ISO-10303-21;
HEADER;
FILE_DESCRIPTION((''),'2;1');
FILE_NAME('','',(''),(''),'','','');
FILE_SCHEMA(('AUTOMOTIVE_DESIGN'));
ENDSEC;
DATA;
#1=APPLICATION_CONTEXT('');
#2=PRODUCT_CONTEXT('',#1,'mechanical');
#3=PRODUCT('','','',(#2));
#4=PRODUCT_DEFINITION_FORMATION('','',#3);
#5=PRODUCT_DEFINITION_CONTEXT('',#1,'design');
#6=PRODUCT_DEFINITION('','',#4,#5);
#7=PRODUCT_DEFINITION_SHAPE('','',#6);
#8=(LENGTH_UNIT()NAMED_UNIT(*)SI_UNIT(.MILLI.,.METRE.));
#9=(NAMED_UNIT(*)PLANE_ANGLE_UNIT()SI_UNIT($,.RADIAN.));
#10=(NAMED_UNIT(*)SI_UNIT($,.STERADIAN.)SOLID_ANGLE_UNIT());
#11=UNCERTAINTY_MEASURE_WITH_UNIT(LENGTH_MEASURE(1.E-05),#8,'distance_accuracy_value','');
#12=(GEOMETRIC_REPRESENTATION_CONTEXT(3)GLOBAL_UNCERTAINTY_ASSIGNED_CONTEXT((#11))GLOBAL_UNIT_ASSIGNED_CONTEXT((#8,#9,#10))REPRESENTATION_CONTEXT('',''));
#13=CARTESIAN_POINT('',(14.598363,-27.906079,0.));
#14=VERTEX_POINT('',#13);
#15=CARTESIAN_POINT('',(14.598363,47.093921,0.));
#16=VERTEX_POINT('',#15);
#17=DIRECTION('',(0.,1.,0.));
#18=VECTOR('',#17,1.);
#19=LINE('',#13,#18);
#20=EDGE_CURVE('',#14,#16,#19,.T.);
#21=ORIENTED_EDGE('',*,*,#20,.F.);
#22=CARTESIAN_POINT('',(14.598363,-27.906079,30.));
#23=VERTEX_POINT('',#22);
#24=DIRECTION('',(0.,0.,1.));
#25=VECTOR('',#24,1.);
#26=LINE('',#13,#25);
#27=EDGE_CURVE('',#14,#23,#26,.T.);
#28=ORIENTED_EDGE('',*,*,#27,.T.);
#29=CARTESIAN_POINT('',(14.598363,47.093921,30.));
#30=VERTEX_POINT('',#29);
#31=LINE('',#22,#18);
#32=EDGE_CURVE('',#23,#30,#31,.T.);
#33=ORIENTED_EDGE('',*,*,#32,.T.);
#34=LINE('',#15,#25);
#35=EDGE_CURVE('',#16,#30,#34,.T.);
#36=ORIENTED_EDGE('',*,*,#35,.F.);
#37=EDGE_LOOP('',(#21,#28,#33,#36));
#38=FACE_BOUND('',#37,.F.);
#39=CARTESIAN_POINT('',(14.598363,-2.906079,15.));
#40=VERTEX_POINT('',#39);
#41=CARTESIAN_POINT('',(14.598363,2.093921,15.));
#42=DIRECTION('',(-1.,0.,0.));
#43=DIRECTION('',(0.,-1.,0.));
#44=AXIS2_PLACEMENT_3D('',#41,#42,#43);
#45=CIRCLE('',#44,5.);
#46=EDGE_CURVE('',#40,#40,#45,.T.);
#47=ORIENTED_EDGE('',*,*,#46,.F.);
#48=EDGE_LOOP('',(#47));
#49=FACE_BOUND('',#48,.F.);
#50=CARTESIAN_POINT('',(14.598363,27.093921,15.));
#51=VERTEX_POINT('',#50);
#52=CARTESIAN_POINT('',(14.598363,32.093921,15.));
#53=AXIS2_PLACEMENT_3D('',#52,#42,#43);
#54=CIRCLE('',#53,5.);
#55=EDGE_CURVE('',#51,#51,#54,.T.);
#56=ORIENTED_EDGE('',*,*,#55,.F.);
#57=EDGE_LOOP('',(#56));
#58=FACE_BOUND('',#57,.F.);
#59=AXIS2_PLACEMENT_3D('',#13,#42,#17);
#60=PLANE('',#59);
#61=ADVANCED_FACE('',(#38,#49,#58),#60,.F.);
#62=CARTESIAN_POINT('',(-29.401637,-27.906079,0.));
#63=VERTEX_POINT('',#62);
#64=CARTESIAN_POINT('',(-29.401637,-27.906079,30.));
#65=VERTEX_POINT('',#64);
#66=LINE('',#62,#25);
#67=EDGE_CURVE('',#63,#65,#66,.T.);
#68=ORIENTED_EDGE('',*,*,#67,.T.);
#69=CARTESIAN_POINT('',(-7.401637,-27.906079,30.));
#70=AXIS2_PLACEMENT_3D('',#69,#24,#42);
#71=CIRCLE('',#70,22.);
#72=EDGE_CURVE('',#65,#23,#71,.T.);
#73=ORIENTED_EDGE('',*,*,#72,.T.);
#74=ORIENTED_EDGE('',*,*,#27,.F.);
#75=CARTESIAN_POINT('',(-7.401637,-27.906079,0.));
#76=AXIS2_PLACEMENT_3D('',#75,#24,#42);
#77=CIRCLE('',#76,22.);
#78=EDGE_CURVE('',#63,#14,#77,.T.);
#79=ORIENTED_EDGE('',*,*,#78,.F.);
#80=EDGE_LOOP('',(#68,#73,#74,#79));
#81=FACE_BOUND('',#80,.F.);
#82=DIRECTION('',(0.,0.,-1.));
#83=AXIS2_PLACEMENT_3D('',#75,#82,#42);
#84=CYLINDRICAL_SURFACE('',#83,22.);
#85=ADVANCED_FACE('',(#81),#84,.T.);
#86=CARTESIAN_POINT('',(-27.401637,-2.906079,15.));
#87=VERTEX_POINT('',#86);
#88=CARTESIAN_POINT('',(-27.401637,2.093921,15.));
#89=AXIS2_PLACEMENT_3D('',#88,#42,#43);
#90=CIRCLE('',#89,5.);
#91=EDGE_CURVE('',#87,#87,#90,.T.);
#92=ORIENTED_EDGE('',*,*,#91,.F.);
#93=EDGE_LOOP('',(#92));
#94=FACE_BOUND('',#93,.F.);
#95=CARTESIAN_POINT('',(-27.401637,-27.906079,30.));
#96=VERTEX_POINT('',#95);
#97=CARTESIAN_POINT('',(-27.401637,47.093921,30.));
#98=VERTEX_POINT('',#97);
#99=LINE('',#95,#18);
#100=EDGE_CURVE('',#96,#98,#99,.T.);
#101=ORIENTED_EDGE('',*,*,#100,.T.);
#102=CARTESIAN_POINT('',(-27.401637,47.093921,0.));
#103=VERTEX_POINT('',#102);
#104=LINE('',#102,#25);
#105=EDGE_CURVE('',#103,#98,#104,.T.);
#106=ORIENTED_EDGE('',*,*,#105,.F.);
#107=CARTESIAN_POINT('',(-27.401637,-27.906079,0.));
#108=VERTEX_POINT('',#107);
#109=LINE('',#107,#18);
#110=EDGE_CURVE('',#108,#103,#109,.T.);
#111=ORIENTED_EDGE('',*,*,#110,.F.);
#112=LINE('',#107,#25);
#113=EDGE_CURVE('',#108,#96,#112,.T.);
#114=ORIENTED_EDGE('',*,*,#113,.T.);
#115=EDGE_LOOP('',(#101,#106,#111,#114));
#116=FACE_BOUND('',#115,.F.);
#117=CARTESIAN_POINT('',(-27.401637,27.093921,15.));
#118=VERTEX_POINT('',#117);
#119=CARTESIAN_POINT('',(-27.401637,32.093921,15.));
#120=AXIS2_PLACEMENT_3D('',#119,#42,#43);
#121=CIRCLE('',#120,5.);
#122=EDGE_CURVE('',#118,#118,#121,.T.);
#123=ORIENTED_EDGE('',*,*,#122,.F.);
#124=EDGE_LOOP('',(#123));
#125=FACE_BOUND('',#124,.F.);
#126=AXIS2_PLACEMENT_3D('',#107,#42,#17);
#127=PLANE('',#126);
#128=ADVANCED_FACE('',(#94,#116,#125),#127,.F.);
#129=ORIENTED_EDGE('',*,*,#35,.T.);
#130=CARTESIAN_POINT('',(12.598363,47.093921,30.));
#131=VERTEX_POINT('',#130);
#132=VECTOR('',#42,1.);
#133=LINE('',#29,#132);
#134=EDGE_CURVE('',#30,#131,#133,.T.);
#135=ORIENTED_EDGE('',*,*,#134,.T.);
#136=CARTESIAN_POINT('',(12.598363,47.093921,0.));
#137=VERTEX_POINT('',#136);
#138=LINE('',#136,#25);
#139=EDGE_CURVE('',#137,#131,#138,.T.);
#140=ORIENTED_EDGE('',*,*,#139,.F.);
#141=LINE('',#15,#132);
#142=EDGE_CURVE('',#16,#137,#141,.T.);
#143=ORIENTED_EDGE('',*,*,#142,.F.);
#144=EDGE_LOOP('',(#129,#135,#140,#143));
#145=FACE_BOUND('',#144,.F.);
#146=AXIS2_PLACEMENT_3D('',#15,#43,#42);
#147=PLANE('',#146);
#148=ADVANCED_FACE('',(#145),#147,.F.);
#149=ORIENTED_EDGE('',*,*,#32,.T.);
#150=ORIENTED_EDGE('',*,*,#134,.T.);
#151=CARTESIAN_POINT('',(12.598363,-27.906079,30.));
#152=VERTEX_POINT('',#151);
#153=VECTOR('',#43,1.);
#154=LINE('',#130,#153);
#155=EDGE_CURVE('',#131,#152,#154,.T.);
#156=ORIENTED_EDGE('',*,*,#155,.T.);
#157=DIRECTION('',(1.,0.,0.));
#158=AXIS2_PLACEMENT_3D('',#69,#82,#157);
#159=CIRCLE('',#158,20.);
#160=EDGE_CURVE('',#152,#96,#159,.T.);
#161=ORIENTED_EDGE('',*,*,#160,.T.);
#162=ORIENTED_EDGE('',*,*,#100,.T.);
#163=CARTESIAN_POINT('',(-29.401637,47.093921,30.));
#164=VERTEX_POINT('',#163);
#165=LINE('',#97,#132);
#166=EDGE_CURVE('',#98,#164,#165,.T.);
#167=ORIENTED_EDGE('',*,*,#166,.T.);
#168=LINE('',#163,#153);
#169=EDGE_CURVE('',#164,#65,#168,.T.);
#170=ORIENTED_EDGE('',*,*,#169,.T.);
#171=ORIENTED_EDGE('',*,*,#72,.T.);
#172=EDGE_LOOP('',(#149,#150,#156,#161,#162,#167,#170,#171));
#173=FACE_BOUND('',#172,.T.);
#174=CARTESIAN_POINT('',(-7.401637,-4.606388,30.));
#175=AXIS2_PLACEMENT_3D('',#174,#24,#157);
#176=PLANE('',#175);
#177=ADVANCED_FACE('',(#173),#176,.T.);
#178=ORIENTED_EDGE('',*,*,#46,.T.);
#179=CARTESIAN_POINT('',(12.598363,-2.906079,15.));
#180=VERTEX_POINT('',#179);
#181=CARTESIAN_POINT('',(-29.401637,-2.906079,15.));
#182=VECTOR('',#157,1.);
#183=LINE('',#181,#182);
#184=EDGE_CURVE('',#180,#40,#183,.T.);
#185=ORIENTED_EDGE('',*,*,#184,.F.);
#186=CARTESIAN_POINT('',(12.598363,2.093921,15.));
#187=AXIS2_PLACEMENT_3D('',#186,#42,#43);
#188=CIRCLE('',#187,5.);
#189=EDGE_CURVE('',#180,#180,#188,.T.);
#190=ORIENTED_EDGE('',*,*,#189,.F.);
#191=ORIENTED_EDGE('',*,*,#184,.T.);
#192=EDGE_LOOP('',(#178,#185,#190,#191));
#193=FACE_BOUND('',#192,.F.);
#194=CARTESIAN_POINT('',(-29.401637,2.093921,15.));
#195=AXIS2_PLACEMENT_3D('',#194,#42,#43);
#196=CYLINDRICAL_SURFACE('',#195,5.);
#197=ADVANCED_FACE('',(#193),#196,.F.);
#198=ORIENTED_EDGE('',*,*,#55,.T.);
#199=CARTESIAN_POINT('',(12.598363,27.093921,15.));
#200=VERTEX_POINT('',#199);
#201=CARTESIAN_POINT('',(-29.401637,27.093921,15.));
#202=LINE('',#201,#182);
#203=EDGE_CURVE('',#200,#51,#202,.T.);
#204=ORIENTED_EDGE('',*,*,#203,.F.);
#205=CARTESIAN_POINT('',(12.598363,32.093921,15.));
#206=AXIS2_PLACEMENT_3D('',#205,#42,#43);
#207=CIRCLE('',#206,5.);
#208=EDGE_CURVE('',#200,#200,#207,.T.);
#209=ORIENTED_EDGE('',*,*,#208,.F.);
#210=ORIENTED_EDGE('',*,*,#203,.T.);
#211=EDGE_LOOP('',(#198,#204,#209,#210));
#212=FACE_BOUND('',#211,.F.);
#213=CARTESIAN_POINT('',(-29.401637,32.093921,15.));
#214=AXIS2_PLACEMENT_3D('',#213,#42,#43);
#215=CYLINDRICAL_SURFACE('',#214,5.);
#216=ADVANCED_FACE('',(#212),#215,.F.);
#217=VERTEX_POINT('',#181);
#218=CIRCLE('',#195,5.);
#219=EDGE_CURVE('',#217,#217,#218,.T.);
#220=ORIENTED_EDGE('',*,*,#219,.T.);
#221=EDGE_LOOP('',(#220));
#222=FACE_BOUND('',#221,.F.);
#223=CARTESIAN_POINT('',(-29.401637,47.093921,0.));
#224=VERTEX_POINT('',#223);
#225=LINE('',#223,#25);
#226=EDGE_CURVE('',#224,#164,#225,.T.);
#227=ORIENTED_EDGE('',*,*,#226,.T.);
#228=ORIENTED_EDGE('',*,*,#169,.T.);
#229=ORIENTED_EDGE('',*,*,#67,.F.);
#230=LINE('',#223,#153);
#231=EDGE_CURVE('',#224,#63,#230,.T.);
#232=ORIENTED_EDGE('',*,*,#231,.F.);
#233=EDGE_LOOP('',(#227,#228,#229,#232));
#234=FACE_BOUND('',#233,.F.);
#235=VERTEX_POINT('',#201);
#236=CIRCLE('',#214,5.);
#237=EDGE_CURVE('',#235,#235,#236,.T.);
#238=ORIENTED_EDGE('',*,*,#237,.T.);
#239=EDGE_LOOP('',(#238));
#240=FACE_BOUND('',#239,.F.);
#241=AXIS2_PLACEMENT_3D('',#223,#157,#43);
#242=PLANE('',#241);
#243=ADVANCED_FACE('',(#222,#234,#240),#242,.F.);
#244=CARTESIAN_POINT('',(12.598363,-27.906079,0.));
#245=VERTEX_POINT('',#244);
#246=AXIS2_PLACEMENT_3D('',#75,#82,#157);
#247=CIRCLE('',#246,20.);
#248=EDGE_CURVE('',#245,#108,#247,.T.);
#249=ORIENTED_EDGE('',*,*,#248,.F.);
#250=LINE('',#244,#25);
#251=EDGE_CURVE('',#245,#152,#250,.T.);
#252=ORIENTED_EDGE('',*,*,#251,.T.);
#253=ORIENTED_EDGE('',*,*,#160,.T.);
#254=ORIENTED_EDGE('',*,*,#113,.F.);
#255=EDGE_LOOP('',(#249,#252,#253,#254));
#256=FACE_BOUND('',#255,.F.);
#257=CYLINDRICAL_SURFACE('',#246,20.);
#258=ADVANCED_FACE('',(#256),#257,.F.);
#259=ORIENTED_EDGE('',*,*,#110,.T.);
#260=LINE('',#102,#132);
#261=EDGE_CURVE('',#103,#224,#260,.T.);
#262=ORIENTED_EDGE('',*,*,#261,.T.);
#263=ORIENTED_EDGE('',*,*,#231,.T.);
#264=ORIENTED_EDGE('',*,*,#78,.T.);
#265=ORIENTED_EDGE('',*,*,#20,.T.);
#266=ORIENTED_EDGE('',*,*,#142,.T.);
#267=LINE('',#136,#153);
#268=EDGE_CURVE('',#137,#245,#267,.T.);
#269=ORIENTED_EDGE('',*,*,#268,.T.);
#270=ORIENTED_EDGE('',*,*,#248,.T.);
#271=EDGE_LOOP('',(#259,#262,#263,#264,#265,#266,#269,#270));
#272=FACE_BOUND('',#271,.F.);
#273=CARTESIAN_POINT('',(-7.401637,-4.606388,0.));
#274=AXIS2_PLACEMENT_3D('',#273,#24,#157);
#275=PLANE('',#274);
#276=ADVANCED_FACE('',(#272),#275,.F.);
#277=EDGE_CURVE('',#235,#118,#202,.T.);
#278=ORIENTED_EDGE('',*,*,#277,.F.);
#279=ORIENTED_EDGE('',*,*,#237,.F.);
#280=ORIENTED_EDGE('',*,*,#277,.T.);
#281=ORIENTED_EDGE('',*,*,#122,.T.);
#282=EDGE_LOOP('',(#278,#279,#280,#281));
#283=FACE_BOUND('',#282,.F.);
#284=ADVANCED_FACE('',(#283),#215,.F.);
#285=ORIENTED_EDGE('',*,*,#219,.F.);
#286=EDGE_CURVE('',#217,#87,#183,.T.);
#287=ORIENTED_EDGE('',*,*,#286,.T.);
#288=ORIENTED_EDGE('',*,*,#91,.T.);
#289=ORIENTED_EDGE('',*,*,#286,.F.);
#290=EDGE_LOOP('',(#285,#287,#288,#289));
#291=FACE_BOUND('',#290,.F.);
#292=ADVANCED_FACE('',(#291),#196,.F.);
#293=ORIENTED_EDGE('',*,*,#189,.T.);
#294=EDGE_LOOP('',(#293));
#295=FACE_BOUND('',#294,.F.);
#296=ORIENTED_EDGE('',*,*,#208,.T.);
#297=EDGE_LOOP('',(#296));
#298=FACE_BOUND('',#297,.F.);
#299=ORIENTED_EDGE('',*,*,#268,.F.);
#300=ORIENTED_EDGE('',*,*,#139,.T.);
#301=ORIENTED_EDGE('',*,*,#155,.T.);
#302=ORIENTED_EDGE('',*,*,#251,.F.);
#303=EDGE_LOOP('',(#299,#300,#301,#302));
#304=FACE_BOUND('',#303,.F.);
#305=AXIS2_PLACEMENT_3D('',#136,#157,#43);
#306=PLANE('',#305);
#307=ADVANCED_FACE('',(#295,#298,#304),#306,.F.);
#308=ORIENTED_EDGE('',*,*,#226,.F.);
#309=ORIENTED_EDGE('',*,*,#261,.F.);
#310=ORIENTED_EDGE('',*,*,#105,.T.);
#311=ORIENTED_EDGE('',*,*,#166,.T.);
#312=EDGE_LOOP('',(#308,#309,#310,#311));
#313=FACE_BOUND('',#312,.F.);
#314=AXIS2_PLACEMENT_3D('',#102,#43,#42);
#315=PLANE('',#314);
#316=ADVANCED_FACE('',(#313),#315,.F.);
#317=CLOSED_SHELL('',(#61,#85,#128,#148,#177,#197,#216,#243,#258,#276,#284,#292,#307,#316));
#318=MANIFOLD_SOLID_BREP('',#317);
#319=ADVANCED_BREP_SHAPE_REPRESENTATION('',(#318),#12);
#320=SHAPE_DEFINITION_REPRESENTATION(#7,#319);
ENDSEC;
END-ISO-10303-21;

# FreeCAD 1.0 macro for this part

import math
import FreeCAD as App
import Part
import Sketcher
Q = App.Units.Quantity

doc = App.newDocument("Part")
body = doc.addObject("PartDesign::Body", "Body")

sketch1 = body.newObject("Sketcher::SketchObject", "Sketch")
sketch1.AttachmentSupport = (doc.getObject("XY_Plane"), [""])
sketch1.MapMode = "FlatFace"
sketch1.addGeometry([
    Part.LineSegment(App.Vector(-27.401637, -27.906079, 0), App.Vector(-27.401637, 47.093921, 0)),
    Part.LineSegment(App.Vector(-27.401637, 47.093921, 0), App.Vector(-29.401637, 47.093921, 0)),
    Part.LineSegment(App.Vector(-29.401637, 47.093921, 0), App.Vector(-29.401637, -27.906079, 0)),
    Part.ArcOfCircle(Part.Circle(App.Vector(-7.401637, -27.906079, 0), App.Vector(0, 0, 1), 22), math.radians(180), math.radians(360)),
    Part.LineSegment(App.Vector(14.598363, -27.906079, 0), App.Vector(14.598363, 47.093921, 0)),
    Part.LineSegment(App.Vector(14.598363, 47.093921, 0), App.Vector(12.598363, 47.093921, 0)),
    Part.LineSegment(App.Vector(12.598363, 47.093921, 0), App.Vector(12.598363, -27.906079, 0)),
    Part.ArcOfCircle(Part.Circle(App.Vector(-7.401637, -27.906079, 0), App.Vector(0, 0, 1), 20), math.radians(180), math.radians(360)),
], False)
sketch1.addConstraint([
    Sketcher.Constraint("Coincident", 0, 2, 1, 1),
    Sketcher.Constraint("Coincident", 1, 2, 2, 1),
    Sketcher.Constraint("Tangent", 2, 2, 3, 1),
    Sketcher.Constraint("Tangent", 3, 2, 4, 1),
    Sketcher.Constraint("Coincident", 4, 2, 5, 1),
    Sketcher.Constraint("Coincident", 5, 2, 6, 1),
    Sketcher.Constraint("Tangent", 6, 2, 7, 2),
    Sketcher.Constraint("Tangent", 7, 1, 0, 1),
    Sketcher.Constraint("Vertical", 0),
    Sketcher.Constraint("Horizontal", 1),
    Sketcher.Constraint("Vertical", 2),
    Sketcher.Constraint("Vertical", 4),
    Sketcher.Constraint("Horizontal", 5),
    Sketcher.Constraint("Vertical", 6),
    Sketcher.Constraint("Coincident", 7, 3, 3, 3),
    Sketcher.Constraint("Horizontal", 1, 2, 4, 2),
    Sketcher.Constraint("Radius", 3, Q("22 mm")),
    Sketcher.Constraint("Radius", 7, Q("20 mm")),
    Sketcher.Constraint("DistanceY", 0, 1, 0, 2, Q("75 mm")),
    Sketcher.Constraint("DistanceY", 3, 3, -1, 1, Q("27.906079 mm")),
    Sketcher.Constraint("DistanceX", 3, 3, -1, 1, Q("7.401637 mm")),
])
pad1 = body.newObject("PartDesign::Pad", "Pad")
pad1.Profile = sketch1
pad1.Length = 30

sketch2 = body.newObject("Sketcher::SketchObject", "Sketch001")
sketch2.AttachmentSupport = (doc.getObject("YZ_Plane"), [""])
sketch2.MapMode = "FlatFace"
sketch2.AttachmentOffset = App.Placement(App.Vector(0, 0, -29.401637), App.Rotation())
sketch2.addGeometry([
    Part.Circle(App.Vector(32.093921, 15, 0), App.Vector(0, 0, 1), 5),
    Part.Circle(App.Vector(2.093921, 15, 0), App.Vector(0, 0, 1), 5),
], False)
sketch2.addConstraint([
    Sketcher.Constraint("Equal", 0, 1),
    Sketcher.Constraint("Horizontal", 0, 3, 1, 3),
    Sketcher.Constraint("Diameter", 0, Q("10 mm")),
    Sketcher.Constraint("DistanceY", -1, 1, 0, 3, Q("15 mm")),
    Sketcher.Constraint("DistanceX", 1, 3, 0, 3, Q("30 mm")),
    Sketcher.Constraint("DistanceX", -1, 1, 0, 3, Q("32.093921 mm")),
])
pocket1 = body.newObject("PartDesign::Pocket", "Pocket")
pocket1.Profile = sketch2
pocket1.Type = "ThroughAll"
pocket1.Reversed = True

doc.recompute()
